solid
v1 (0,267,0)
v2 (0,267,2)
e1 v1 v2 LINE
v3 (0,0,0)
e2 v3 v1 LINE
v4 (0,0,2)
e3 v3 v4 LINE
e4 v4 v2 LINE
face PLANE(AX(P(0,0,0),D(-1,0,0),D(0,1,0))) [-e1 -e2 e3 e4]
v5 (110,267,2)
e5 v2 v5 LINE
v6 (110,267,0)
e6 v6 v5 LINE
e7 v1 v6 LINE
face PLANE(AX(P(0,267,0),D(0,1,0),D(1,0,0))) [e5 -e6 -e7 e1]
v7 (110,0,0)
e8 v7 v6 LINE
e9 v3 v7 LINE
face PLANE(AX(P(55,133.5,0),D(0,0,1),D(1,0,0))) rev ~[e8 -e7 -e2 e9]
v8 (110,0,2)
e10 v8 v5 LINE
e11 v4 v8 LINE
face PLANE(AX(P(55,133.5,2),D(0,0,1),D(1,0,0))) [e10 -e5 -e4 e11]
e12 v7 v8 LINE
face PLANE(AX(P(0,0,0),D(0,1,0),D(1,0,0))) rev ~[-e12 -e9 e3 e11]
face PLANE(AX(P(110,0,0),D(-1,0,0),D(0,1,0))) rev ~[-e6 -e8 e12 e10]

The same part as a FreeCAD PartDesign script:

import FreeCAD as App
import Part
import Sketcher
from FreeCAD import Vector


def add_polygon(sketch, points):
    """Adds a closed chain of lines whose ends are joined by coincident constraints."""
    first, n = sketch.GeometryCount, len(points)
    for a, b in zip(points, points[1:] + points[:1]):
        sketch.addGeometry(Part.LineSegment(App.Vector(*a, 0), App.Vector(*b, 0)), False)
    for i in range(n):
        sketch.addConstraint(Sketcher.Constraint("Coincident", first + i, 2, first + (i + 1) % n, 1))

doc = App.newDocument("Part")
body = doc.addObject("PartDesign::Body", "Body")

# Sketch on XY plane
sketch1 = doc.addObject("Sketcher::SketchObject", "Sketch")
body.addObject(sketch1)
sketch1.AttachmentSupport = (doc.XY_Plane, [""])
sketch1.MapMode = "FlatFace"
add_polygon(sketch1, [(0, 267), (0, 0), (110, 0), (110, 267)])  # lines 0-3
sketch1.addConstraint(Sketcher.Constraint("Vertical", 0))
sketch1.addConstraint(Sketcher.Constraint("Horizontal", 1))
sketch1.addConstraint(Sketcher.Constraint("Vertical", 2))
sketch1.addConstraint(Sketcher.Constraint("Horizontal", 3))
sketch1.addConstraint(Sketcher.Constraint("Coincident", 0, 2, -1, 1))
sketch1.addConstraint(Sketcher.Constraint("DistanceX", 1, 1, 1, 2, 110.0))
sketch1.addConstraint(Sketcher.Constraint("DistanceY", 0, 2, 0, 1, 267.0))
pad1 = doc.addObject("PartDesign::Pad", "Pad")
body.addObject(pad1)
pad1.Profile = sketch1
pad1.Length = 2

doc.recompute()
